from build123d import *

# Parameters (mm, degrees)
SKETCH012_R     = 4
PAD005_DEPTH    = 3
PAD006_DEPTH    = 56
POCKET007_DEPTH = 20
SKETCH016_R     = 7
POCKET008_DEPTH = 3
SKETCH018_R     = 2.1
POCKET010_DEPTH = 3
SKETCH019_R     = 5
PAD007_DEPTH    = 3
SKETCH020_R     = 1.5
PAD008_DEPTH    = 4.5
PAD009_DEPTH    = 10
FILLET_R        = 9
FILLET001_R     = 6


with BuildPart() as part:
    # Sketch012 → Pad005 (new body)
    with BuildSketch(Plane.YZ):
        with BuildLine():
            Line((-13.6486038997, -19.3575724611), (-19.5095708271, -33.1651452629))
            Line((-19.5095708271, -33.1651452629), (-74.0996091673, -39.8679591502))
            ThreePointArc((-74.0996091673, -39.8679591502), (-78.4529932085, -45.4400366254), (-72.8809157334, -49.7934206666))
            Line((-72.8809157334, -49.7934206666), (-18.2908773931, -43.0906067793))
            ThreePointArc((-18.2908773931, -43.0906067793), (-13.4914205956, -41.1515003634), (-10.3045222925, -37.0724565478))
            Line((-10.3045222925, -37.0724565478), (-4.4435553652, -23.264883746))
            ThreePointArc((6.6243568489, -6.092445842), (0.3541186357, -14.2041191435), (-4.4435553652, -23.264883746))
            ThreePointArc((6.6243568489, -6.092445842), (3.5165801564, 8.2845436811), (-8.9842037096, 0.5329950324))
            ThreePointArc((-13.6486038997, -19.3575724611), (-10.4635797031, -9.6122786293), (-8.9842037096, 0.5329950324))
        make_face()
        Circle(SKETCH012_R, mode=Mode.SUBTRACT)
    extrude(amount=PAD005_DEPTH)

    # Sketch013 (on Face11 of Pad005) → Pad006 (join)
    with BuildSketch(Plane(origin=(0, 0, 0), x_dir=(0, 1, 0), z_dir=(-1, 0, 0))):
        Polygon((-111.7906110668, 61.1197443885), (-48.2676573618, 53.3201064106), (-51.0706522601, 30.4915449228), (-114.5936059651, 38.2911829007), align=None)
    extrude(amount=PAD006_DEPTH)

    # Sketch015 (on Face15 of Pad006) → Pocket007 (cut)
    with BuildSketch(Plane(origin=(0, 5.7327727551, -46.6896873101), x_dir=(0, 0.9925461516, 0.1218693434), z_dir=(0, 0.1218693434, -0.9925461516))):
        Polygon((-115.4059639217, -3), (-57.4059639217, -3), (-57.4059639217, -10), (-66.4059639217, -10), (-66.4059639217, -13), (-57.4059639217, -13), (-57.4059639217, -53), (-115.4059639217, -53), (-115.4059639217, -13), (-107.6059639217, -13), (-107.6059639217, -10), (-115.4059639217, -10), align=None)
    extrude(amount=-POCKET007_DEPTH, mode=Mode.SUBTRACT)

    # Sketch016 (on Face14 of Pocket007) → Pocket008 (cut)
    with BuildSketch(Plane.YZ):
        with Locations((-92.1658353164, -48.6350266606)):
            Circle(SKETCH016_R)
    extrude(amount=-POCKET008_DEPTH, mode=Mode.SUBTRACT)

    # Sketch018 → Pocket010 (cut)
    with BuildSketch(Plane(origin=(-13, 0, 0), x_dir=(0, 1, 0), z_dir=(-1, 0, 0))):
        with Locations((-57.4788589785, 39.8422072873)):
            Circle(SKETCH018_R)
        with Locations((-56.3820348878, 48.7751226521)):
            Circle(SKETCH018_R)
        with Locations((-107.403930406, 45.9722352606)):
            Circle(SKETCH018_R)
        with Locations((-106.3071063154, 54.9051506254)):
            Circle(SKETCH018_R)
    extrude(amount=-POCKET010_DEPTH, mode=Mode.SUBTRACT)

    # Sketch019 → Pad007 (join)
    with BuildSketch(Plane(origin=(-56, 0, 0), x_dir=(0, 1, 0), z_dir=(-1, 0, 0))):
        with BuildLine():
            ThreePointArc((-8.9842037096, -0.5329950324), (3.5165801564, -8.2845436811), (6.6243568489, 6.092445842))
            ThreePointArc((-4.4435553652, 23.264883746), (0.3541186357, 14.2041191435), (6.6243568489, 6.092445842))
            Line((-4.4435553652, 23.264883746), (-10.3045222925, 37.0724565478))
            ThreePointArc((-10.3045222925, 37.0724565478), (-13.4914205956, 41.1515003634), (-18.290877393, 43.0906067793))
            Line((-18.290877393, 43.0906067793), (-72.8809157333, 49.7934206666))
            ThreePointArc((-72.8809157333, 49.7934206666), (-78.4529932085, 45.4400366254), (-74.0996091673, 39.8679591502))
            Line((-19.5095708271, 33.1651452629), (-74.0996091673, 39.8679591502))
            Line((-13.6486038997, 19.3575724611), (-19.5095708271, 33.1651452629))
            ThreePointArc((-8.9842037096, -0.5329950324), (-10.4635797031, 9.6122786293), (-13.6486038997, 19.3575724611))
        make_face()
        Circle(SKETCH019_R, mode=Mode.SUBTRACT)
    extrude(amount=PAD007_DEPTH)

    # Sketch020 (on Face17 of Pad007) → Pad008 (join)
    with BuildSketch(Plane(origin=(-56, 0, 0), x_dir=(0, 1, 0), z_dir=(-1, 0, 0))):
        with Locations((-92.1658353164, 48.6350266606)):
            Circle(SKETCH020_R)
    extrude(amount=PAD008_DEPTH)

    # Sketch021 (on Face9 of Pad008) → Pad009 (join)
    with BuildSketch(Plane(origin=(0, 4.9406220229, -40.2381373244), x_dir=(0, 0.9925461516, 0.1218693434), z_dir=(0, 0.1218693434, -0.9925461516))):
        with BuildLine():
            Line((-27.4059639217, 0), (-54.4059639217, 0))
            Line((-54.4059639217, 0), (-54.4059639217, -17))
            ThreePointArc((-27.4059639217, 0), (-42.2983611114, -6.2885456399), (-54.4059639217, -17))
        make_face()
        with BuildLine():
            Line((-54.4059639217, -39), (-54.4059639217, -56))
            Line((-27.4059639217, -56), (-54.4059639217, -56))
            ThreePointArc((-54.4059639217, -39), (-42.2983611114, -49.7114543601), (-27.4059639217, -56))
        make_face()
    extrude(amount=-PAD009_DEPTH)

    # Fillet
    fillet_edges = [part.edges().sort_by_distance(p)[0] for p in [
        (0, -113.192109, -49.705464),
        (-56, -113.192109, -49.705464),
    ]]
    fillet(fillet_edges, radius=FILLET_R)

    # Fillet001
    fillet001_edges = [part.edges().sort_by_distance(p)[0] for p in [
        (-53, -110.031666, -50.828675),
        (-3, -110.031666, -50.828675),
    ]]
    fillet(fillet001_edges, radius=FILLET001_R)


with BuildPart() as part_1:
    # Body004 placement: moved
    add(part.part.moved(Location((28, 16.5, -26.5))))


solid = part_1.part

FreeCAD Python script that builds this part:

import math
import FreeCAD as App
import Part
import Sketcher
from FreeCAD import Vector
Q = App.Units.Quantity


def edges_at(feature, points):
    """Names of the edges that pass closest to the given points."""
    edges = feature.Shape.Edges
    near = lambda p: min(range(len(edges)), key=lambda i: edges[i].distToShape(Part.Vertex(*p))[0])
    return sorted({f"Edge{near(p) + 1}" for p in points})


def add_polygon(sketch, points):
    """Adds a closed chain of lines whose ends are joined by coincident constraints."""
    first, n = sketch.GeometryCount, len(points)
    for a, b in zip(points, points[1:] + points[:1]):
        sketch.addGeometry(Part.LineSegment(App.Vector(*a, 0), App.Vector(*b, 0)), False)
    for i in range(n):
        sketch.addConstraint(Sketcher.Constraint("Coincident", first + i, 2, first + (i + 1) % n, 1))

doc = App.newDocument("Part")
body = doc.addObject("PartDesign::Body", "Body")

# Sketch on YZ plane
sketch1 = body.newObject("Sketcher::SketchObject", "Sketch")
sketch1.AttachmentSupport = (doc.getObject("YZ_Plane"), [""])
sketch1.MapMode = "FlatFace"
sketch1.addGeometry([
    Part.LineSegment(Vector(-13.6, -19.4, 0), Vector(-19.5, -33.2, 0)),  # 0
    Part.LineSegment(Vector(-19.5, -33.2, 0), Vector(-74.1, -39.9, 0)),  # 1
    Part.ArcOfCircle(Part.Circle(Vector(-73.5, -44.8, 0), Vector(0, 0, 1), 5), math.radians(97), math.radians(277)),  # 2
    Part.LineSegment(Vector(-72.9, -49.8, 0), Vector(-18.3, -43.1, 0)),  # 3
    Part.ArcOfCircle(Part.Circle(Vector(-19.5, -33.2, 0), Vector(0, 0, 1), 10), math.radians(-83), math.radians(-23)),  # 4
    Part.LineSegment(Vector(-10.3, -37.1, 0), Vector(-4.4, -23.3, 0)),  # 5
    Part.ArcOfCircle(Part.Circle(Vector(50.8, -46.7, 0), Vector(0, 0, 1), 60), math.radians(137.4), math.radians(157)),  # 6
    Part.ArcOfCircle(Part.Circle(Vector(0, 0, 0), Vector(0, 0, 1), 9), math.radians(-43), math.radians(177)),  # 7
    Part.ArcOfCircle(Part.Circle(Vector(-68.9, 4.1, 0), Vector(0, 0, 1), 60), math.radians(-23), math.radians(-3.4)),  # 8
    Part.Circle(Vector(0, 0, 0), Vector(0, 0, 1), 4),  # 9
], False)
sketch1.addConstraint([
    Sketcher.Constraint("Coincident", 0, 2, 1, 1),
    Sketcher.Constraint("Tangent", 1, 2, 2, 1),
    Sketcher.Constraint("Tangent", 2, 2, 3, 1),
    Sketcher.Constraint("Tangent", 3, 2, 4, 1),
    Sketcher.Constraint("Tangent", 4, 2, 5, 1),
    Sketcher.Constraint("Tangent", 5, 2, 6, 2),
    Sketcher.Constraint("Tangent", 6, 1, 7, 1),
    Sketcher.Constraint("Tangent", 7, 2, 8, 2),
    Sketcher.Constraint("Tangent", 8, 1, 0, 1),
    Sketcher.Constraint("Coincident", 7, 3, -1, 1),
    Sketcher.Constraint("Coincident", 9, 3, -1, 1),
    Sketcher.Constraint("Coincident", 0, 2, 4, 3),
    Sketcher.Constraint("Equal", 6, 8),
    Sketcher.Constraint("Parallel", 1, 3),
    Sketcher.Constraint("Parallel", 0, 5),
    Sketcher.Constraint("Equal", 0, 5),
    Sketcher.Constraint("Diameter", 9, Q("8 mm")),
    Sketcher.Constraint("Radius", 2, Q("5 mm")),
    Sketcher.Constraint("Radius", 6, Q("60 mm")),
    Sketcher.Constraint("Radius", 7, Q("9 mm")),
    Sketcher.Constraint("Angle", 0, Q("-113 deg")),
    Sketcher.Constraint("Angle", 1, Q("-173 deg")),
    Sketcher.Constraint("Distance", 0, Q("15 mm")),
    Sketcher.Constraint("Distance", 1, Q("55 mm")),
])
pad1 = body.newObject("PartDesign::Pad", "Pad")
pad1.Profile = sketch1
pad1.Length = 3

# Sketch on YZ plane
sketch2 = body.newObject("Sketcher::SketchObject", "Sketch001")
sketch2.AttachmentSupport = (doc.getObject("YZ_Plane"), [""])
sketch2.MapMode = "FlatFace"
add_polygon(sketch2, [(-48, -53), (-112, -61), (-115, -38), (-51, -30)])  # lines 0-3
sketch2.addConstraint([
    Sketcher.Constraint("Perpendicular", 0, 1),
    Sketcher.Constraint("Perpendicular", 1, 2),
    Sketcher.Constraint("Perpendicular", 2, 3),
    Sketcher.Constraint("Angle", 0, Q("-173 deg")),
    Sketcher.Constraint("Distance", 0, Q("64 mm")),
    Sketcher.Constraint("Distance", 1, Q("23 mm")),
    Sketcher.Constraint("DistanceX", 0, 2, -1, 1, Q("111.790611 mm")),
    Sketcher.Constraint("DistanceY", 0, 2, -1, 1, Q("61.119744 mm")),
])
pad2 = body.newObject("PartDesign::Pad", "Pad001")
pad2.Profile = sketch2
pad2.Length = 56
pad2.Reversed = True

# Sketch on an angled plane
sketch3 = body.newObject("Sketcher::SketchObject", "Sketch002")
sketch3.Placement = App.Placement(Vector(0, 5.732773, -46.689687), App.Rotation(Vector(0, 0.992546152, 0.121869343), Vector(1.000000001, 0, 0), Vector(0, 0.121869343, -0.992546152), "ZXY"))
add_polygon(sketch3, [(-57.4, -3), (-115.4, -3), (-115.4, -10), (-107.6, -10), (-107.6, -13), (-115.4, -13), (-115.4, -53), (-57.4, -53), (-57.4, -13), (-66.4, -13), (-66.4, -10), (-57.4, -10)])  # lines 0-11
sketch3.addConstraint([
    Sketcher.Constraint("Horizontal", 0),
    Sketcher.Constraint("Vertical", 1),
    Sketcher.Constraint("Horizontal", 2),
    Sketcher.Constraint("Vertical", 3),
    Sketcher.Constraint("Horizontal", 4),
    Sketcher.Constraint("Vertical", 5),
    Sketcher.Constraint("Horizontal", 6),
    Sketcher.Constraint("Vertical", 7),
    Sketcher.Constraint("Horizontal", 8),
    Sketcher.Constraint("Vertical", 9),
    Sketcher.Constraint("Horizontal", 10),
    Sketcher.Constraint("Vertical", 11),
    Sketcher.Constraint("Horizontal", 4, 2, 7, 2),
    Sketcher.Constraint("Horizontal", 2, 2, 9, 2),
    Sketcher.Constraint("Vertical", 1, 2, 4, 2),
    Sketcher.Constraint("Vertical", 7, 2, 10, 2),
    Sketcher.Constraint("DistanceX", 0, 2, 0, 1, Q("58 mm")),
    Sketcher.Constraint("DistanceX", 8, 2, 8, 1, Q("9 mm")),
    Sketcher.Constraint("DistanceY", 1, 2, 1, 1, Q("7 mm")),
    Sketcher.Constraint("DistanceY", 3, 2, 3, 1, Q("3 mm")),
    Sketcher.Constraint("DistanceY", 5, 2, 5, 1, Q("40 mm")),
    Sketcher.Constraint("DistanceX", 2, 1, 2, 2, Q("7.8 mm")),
    Sketcher.Constraint("DistanceY", 0, 2, -1, 1, Q("3 mm")),
    Sketcher.Constraint("DistanceX", 0, 2, -1, 1, Q("115.405964 mm")),
])
pocket1 = body.newObject("PartDesign::Pocket", "Pocket")
pocket1.Profile = sketch3
pocket1.Length = 20

# Sketch on YZ plane
sketch4 = body.newObject("Sketcher::SketchObject", "Sketch003")
sketch4.AttachmentSupport = (doc.getObject("YZ_Plane"), [""])
sketch4.MapMode = "FlatFace"
sketch4.addGeometry(Part.Circle(Vector(-92, -49, 0), Vector(0, 0, 1), 7), False)
sketch4.addConstraint([
    Sketcher.Constraint("Diameter", 0, Q("14 mm")),
    Sketcher.Constraint("DistanceX", 0, 3, -1, 1, Q("92.165835 mm")),
    Sketcher.Constraint("DistanceY", 0, 3, -1, 1, Q("48.635027 mm")),
])
pocket2 = body.newObject("PartDesign::Pocket", "Pocket001")
pocket2.Profile = sketch4
pocket2.Length = 3

# Sketch on YZ plane
sketch5 = body.newObject("Sketcher::SketchObject", "Sketch004")
sketch5.AttachmentSupport = (doc.getObject("YZ_Plane"), [""])
sketch5.MapMode = "FlatFace"
sketch5.AttachmentOffset = App.Placement(Vector(0, 0, -13), App.Rotation())
sketch5.addGeometry([
    Part.Circle(Vector(-57.5, -39.8, 0), Vector(0, 0, 1), 2.1),
    Part.Circle(Vector(-56.4, -48.8, 0), Vector(0, 0, 1), 2.1),
    Part.Circle(Vector(-107.4, -46, 0), Vector(0, 0, 1), 2.1),
    Part.Circle(Vector(-106.3, -54.9, 0), Vector(0, 0, 1), 2.1),
], False)
sketch5.addConstraint([
    Sketcher.Constraint("Equal", 0, 1),
    Sketcher.Constraint("Equal", 1, 2),
    Sketcher.Constraint("Equal", 2, 3),
    Sketcher.Constraint("Diameter", 0, Q("4.2 mm")),
    Sketcher.Constraint("DistanceX", 0, 3, -1, 1, Q("57.478859 mm")),
    Sketcher.Constraint("DistanceX", 2, 3, -1, 1, Q("107.40393 mm")),
    Sketcher.Constraint("DistanceY", 3, 3, -1, 1, Q("54.905151 mm")),
    Sketcher.Constraint("DistanceX", 3, 3, 1, 3, Q("49.925071 mm")),
    Sketcher.Constraint("DistanceY", 0, 3, -1, 1, Q("39.842207 mm")),
    Sketcher.Constraint("DistanceX", 1, 3, -1, 1, Q("56.382035 mm")),
    Sketcher.Constraint("DistanceY", 1, 3, -1, 1, Q("48.775123 mm")),
    Sketcher.Constraint("DistanceY", 2, 3, -1, 1, Q("45.972235 mm")),
])
pocket3 = body.newObject("PartDesign::Pocket", "Pocket002")
pocket3.Profile = sketch5
pocket3.Length = 3
pocket3.Reversed = True

# Sketch on YZ plane
sketch6 = body.newObject("Sketcher::SketchObject", "Sketch005")
sketch6.AttachmentSupport = (doc.getObject("YZ_Plane"), [""])
sketch6.MapMode = "FlatFace"
sketch6.AttachmentOffset = App.Placement(Vector(0, 0, -56), App.Rotation())
sketch6.addGeometry([
    Part.ArcOfCircle(Part.Circle(Vector(0, 0, 0), Vector(0, 0, 1), 9), math.radians(-43), math.radians(177)),  # 0
    Part.ArcOfCircle(Part.Circle(Vector(51, -47, 0), Vector(0, 0, 1), 60), math.radians(137.4), math.radians(157)),  # 1
    Part.LineSegment(Vector(-4, -23, 0), Vector(-10, -37, 0)),  # 2
    Part.ArcOfCircle(Part.Circle(Vector(-20, -33, 0), Vector(0, 0, 1), 10), math.radians(-83), math.radians(-23)),  # 3
    Part.LineSegment(Vector(-18, -43, 0), Vector(-73, -50, 0)),  # 4
    Part.ArcOfCircle(Part.Circle(Vector(-73, -45, 0), Vector(0, 0, 1), 5), math.radians(97), math.radians(277)),  # 5
    Part.LineSegment(Vector(-74, -40, 0), Vector(-20, -33, 0)),  # 6
    Part.LineSegment(Vector(-20, -33, 0), Vector(-14, -19, 0)),  # 7
    Part.ArcOfCircle(Part.Circle(Vector(-69, 4, 0), Vector(0, 0, 1), 60), math.radians(-23), math.radians(-3.4)),  # 8
    Part.Circle(Vector(0, 0, 0), Vector(0, 0, 1), 5),  # 9
], False)
sketch6.addConstraint([
    Sketcher.Constraint("Tangent", 0, 1, 1, 1),
    Sketcher.Constraint("Tangent", 1, 2, 2, 1),
    Sketcher.Constraint("Tangent", 2, 2, 3, 2),
    Sketcher.Constraint("Tangent", 3, 1, 4, 1),
    Sketcher.Constraint("Tangent", 4, 2, 5, 2),
    Sketcher.Constraint("Tangent", 5, 1, 6, 1),
    Sketcher.Constraint("Coincident", 6, 2, 7, 1),
    Sketcher.Constraint("Tangent", 7, 2, 8, 1),
    Sketcher.Constraint("Tangent", 8, 2, 0, 2),
    Sketcher.Constraint("Coincident", 0, 3, -1, 1),
    Sketcher.Constraint("Coincident", 9, 3, -1, 1),
    Sketcher.Constraint("Coincident", 6, 2, 3, 3),
    Sketcher.Constraint("Equal", 1, 8),
    Sketcher.Constraint("Equal", 5, 9),
    Sketcher.Constraint("Parallel", 4, 6),
    Sketcher.Constraint("Parallel", 2, 7),
    Sketcher.Constraint("Equal", 2, 7),
    Sketcher.Constraint("Diameter", 9, Q("10 mm")),
    Sketcher.Constraint("Radius", 0, Q("9 mm")),
    Sketcher.Constraint("Radius", 1, Q("60 mm")),
    Sketcher.Constraint("Angle", 2, Q("-113 deg")),
    Sketcher.Constraint("Angle", 4, Q("-173 deg")),
    Sketcher.Constraint("Distance", 2, Q("15 mm")),
    Sketcher.Constraint("Distance", 4, Q("55 mm")),
])
pad3 = body.newObject("PartDesign::Pad", "Pad002")
pad3.Profile = sketch6
pad3.Length = 3
pad3.Reversed = True

# Sketch on YZ plane
sketch7 = body.newObject("Sketcher::SketchObject", "Sketch006")
sketch7.AttachmentSupport = (doc.getObject("YZ_Plane"), [""])
sketch7.MapMode = "FlatFace"
sketch7.AttachmentOffset = App.Placement(Vector(0, 0, -56), App.Rotation())
sketch7.addGeometry(Part.Circle(Vector(-92.2, -48.6, 0), Vector(0, 0, 1), 1.5), False)
sketch7.addConstraint([
    Sketcher.Constraint("Diameter", 0, Q("3 mm")),
    Sketcher.Constraint("DistanceX", 0, 3, -1, 1, Q("92.165835 mm")),
    Sketcher.Constraint("DistanceY", 0, 3, -1, 1, Q("48.635027 mm")),
])
pad4 = body.newObject("PartDesign::Pad", "Pad003")
pad4.Profile = sketch7
pad4.Length = 4.5
pad4.Reversed = True

# Sketch on an angled plane
sketch8 = body.newObject("Sketcher::SketchObject", "Sketch007")
sketch8.Placement = App.Placement(Vector(0, 4.940622, -40.238137), App.Rotation(Vector(0, 0.992546152, 0.121869343), Vector(1.000000001, 0, 0), Vector(0, 0.121869343, -0.992546152), "ZXY"))
sketch8.addGeometry([
    Part.LineSegment(Vector(-27, 0, 0), Vector(-54, 0, 0)),  # 0
    Part.LineSegment(Vector(-54, 0, 0), Vector(-54, -17, 0)),  # 1
    Part.ArcOfCircle(Part.Circle(Vector(-16, -49, 0), Vector(0, 0, 1), 50), math.radians(104), math.radians(141)),  # 2
    Part.LineSegment(Vector(-54, -39, 0), Vector(-54, -56, 0)),  # 3
    Part.LineSegment(Vector(-54, -56, 0), Vector(-27, -56, 0)),  # 4
    Part.ArcOfCircle(Part.Circle(Vector(-16, -7, 0), Vector(0, 0, 1), 50), math.radians(-141), math.radians(-104)),  # 5
], False)
sketch8.addConstraint([
    Sketcher.Constraint("Coincident", 0, 2, 1, 1),
    Sketcher.Constraint("Coincident", 1, 2, 2, 2),
    Sketcher.Constraint("Coincident", 2, 1, 0, 1),
    Sketcher.Constraint("Coincident", 3, 2, 4, 1),
    Sketcher.Constraint("Coincident", 4, 2, 5, 2),
    Sketcher.Constraint("Coincident", 5, 1, 3, 1),
    Sketcher.Constraint("Horizontal", 0),
    Sketcher.Constraint("Vertical", 1),
    Sketcher.Constraint("Vertical", 3),
    Sketcher.Constraint("Horizontal", 4),
    Sketcher.Constraint("Equal", 2, 5),
    Sketcher.Constraint("PointOnObject", 0, 2, -1),
    Sketcher.Constraint("Vertical", 2, 3, 5, 3),
    Sketcher.Constraint("Vertical", 1, 2, 3, 2),
    Sketcher.Constraint("Vertical", 2, 1, 4, 2),
    Sketcher.Constraint("Radius", 2, Q("50 mm")),
    Sketcher.Constraint("DistanceX", 0, 2, 0, 1, Q("27 mm")),
    Sketcher.Constraint("DistanceY", 1, 2, 1, 1, Q("17 mm")),
    Sketcher.Constraint("DistanceY", 3, 2, -1, 1, Q("56 mm")),
    Sketcher.Constraint("DistanceX", 2, 3, -1, 1, Q("15.657698 mm")),
])
pad5 = body.newObject("PartDesign::Pad", "Pad004")
pad5.Profile = sketch8
pad5.Length = 10
pad5.Reversed = True
doc.recompute()

fillet = body.newObject("PartDesign::Fillet", "Fillet")
fillet.Base = (pad5, edges_at(pad5, [(0, -113.192, -49.705), (-56, -113.192, -49.705)]))
fillet.Radius = 9
doc.recompute()

fillet2 = body.newObject("PartDesign::Fillet", "Fillet001")
fillet2.Base = (fillet, edges_at(fillet, [(-53, -110.032, -50.829), (-3, -110.032, -50.829)]))
fillet2.Radius = 6
body2 = doc.addObject("PartDesign::Body", "Body001")
doc.recompute()

body.Placement = App.Placement(Vector(28, 16.5, -26.5), App.Rotation(Vector(0, 0, 1), 0))
boolean = body2.newObject("PartDesign::Boolean", "Boolean")
boolean.Type = "Fuse"
boolean.addObjects([body])

doc.recompute()
